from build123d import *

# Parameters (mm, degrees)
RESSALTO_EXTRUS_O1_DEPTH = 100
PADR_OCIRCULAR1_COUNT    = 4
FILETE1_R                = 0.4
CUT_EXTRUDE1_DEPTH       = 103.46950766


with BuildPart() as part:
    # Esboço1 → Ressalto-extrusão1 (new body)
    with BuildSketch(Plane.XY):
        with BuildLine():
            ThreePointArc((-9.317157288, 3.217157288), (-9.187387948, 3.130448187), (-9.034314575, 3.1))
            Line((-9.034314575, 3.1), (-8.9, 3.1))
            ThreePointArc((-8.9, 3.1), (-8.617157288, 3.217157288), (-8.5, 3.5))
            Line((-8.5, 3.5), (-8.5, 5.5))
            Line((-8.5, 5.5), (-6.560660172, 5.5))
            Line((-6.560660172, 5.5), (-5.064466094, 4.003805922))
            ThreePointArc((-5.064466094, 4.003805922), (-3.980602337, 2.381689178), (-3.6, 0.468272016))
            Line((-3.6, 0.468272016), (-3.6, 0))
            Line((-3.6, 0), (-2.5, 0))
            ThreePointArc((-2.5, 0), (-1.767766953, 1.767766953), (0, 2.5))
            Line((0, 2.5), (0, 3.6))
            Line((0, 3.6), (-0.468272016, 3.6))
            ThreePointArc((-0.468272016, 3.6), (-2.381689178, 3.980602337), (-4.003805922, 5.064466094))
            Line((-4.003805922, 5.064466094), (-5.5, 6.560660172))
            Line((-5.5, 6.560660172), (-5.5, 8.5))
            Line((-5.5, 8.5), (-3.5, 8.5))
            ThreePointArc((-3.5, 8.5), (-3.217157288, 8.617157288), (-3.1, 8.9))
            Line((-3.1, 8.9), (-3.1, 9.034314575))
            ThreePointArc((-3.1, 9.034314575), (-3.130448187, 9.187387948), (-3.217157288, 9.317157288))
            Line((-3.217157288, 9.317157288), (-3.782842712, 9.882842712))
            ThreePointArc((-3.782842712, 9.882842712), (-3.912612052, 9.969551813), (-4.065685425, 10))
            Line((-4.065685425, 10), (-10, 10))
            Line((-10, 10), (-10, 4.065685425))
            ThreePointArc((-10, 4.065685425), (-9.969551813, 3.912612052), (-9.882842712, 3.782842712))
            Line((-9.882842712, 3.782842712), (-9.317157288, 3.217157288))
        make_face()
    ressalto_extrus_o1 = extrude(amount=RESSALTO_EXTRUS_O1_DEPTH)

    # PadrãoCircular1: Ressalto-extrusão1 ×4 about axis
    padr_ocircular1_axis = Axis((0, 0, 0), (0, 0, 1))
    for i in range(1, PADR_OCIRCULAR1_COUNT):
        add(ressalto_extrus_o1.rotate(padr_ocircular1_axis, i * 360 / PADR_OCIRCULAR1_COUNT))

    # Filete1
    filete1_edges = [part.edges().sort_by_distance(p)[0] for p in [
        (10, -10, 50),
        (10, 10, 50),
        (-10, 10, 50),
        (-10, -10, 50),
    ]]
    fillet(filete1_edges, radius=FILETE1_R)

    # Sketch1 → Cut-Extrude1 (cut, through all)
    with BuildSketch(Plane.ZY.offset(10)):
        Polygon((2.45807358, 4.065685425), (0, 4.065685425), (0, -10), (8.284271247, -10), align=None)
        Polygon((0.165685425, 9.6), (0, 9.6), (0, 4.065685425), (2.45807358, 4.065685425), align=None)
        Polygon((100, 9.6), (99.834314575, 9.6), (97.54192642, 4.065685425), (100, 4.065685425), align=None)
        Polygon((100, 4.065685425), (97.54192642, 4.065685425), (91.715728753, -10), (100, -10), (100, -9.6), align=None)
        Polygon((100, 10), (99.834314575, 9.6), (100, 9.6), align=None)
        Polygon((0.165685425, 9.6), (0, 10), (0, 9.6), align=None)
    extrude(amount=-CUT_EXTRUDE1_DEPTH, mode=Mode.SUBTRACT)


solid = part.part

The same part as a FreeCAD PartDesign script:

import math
import FreeCAD as App
import Part
import Sketcher
from FreeCAD import Vector
Q = App.Units.Quantity


def edges_at(feature, points):
    """Names of the edges that pass closest to the given points."""
    edges = feature.Shape.Edges
    near = lambda p: min(range(len(edges)), key=lambda i: edges[i].distToShape(Part.Vertex(*p))[0])
    return sorted({f"Edge{near(p) + 1}" for p in points})


def add_polygon(sketch, points):
    """Adds a closed chain of lines whose ends are joined by coincident constraints."""
    first, n = sketch.GeometryCount, len(points)
    for a, b in zip(points, points[1:] + points[:1]):
        sketch.addGeometry(Part.LineSegment(App.Vector(*a, 0), App.Vector(*b, 0)), False)
    for i in range(n):
        sketch.addConstraint(Sketcher.Constraint("Coincident", first + i, 2, first + (i + 1) % n, 1))

doc = App.newDocument("Part")
body = doc.addObject("PartDesign::Body", "Body")

# Sketch on XY plane
sketch1 = body.newObject("Sketcher::SketchObject", "Sketch")
sketch1.AttachmentSupport = (doc.getObject("XY_Plane"), [""])
sketch1.MapMode = "FlatFace"
sketch1.addGeometry([
    Part.ArcOfCircle(Part.Circle(Vector(-9.034315, 3.5, 0), Vector(0, 0, 1), 0.4), math.radians(-135), math.radians(-90)),  # 0
    Part.LineSegment(Vector(-9.034315, 3.1, 0), Vector(-8.9, 3.1, 0)),  # 1
    Part.ArcOfCircle(Part.Circle(Vector(-8.9, 3.5, 0), Vector(0, 0, 1), 0.4), math.radians(-90), math.radians(0)),  # 2
    Part.LineSegment(Vector(-8.5, 3.5, 0), Vector(-8.5, 5.5, 0)),  # 3
    Part.LineSegment(Vector(-8.5, 5.5, 0), Vector(-6.56066, 5.5, 0)),  # 4
    Part.LineSegment(Vector(-6.56066, 5.5, 0), Vector(-5.064466, 4.003806, 0)),  # 5
    Part.ArcOfCircle(Part.Circle(Vector(-8.6, 0.468272, 0), Vector(0, 0, 1), 5), math.radians(0), math.radians(45)),  # 6
    Part.LineSegment(Vector(-3.6, 0.468272, 0), Vector(-3.6, 0, 0)),  # 7
    Part.LineSegment(Vector(-3.6, 0, 0), Vector(-2.5, 0, 0)),  # 8
    Part.ArcOfCircle(Part.Circle(Vector(0, 0, 0), Vector(0, 0, 1), 2.5), math.radians(90), math.radians(180)),  # 9
    Part.LineSegment(Vector(0, 2.5, 0), Vector(0, 3.6, 0)),  # 10
    Part.LineSegment(Vector(0, 3.6, 0), Vector(-0.468272, 3.6, 0)),  # 11
    Part.ArcOfCircle(Part.Circle(Vector(-0.468272, 8.6, 0), Vector(0, 0, 1), 5), math.radians(-135), math.radians(-90)),  # 12
    Part.LineSegment(Vector(-4.003806, 5.064466, 0), Vector(-5.5, 6.56066, 0)),  # 13
    Part.LineSegment(Vector(-5.5, 6.56066, 0), Vector(-5.5, 8.5, 0)),  # 14
    Part.LineSegment(Vector(-5.5, 8.5, 0), Vector(-3.5, 8.5, 0)),  # 15
    Part.ArcOfCircle(Part.Circle(Vector(-3.5, 8.9, 0), Vector(0, 0, 1), 0.4), math.radians(-90), math.radians(0)),  # 16
    Part.LineSegment(Vector(-3.1, 8.9, 0), Vector(-3.1, 9.034315, 0)),  # 17
    Part.ArcOfCircle(Part.Circle(Vector(-3.5, 9.034315, 0), Vector(0, 0, 1), 0.4), math.radians(0), math.radians(45)),  # 18
    Part.LineSegment(Vector(-3.217157, 9.317157, 0), Vector(-3.782843, 9.882843, 0)),  # 19
    Part.ArcOfCircle(Part.Circle(Vector(-4.065685, 9.6, 0), Vector(0, 0, 1), 0.4), math.radians(45), math.radians(90)),  # 20
    Part.LineSegment(Vector(-4.065685, 10, 0), Vector(-10, 10, 0)),  # 21
    Part.LineSegment(Vector(-10, 10, 0), Vector(-10, 4.065685, 0)),  # 22
    Part.ArcOfCircle(Part.Circle(Vector(-9.6, 4.065685, 0), Vector(0, 0, 1), 0.4), math.radians(180), math.radians(225)),  # 23
    Part.LineSegment(Vector(-9.882843, 3.782843, 0), Vector(-9.317157, 3.217157, 0)),  # 24
], False)
sketch1.addConstraint([
    Sketcher.Constraint("Tangent", 0, 2, 1, 1),
    Sketcher.Constraint("Tangent", 1, 2, 2, 1),
    Sketcher.Constraint("Tangent", 2, 2, 3, 1),
    Sketcher.Constraint("Coincident", 3, 2, 4, 1),
    Sketcher.Constraint("Coincident", 4, 2, 5, 1),
    Sketcher.Constraint("Tangent", 5, 2, 6, 2),
    Sketcher.Constraint("Tangent", 6, 1, 7, 1),
    Sketcher.Constraint("Coincident", 7, 2, 8, 1),
    Sketcher.Constraint("Coincident", 8, 2, 9, 2),
    Sketcher.Constraint("Coincident", 9, 1, 10, 1),
    Sketcher.Constraint("Coincident", 10, 2, 11, 1),
    Sketcher.Constraint("Tangent", 11, 2, 12, 2),
    Sketcher.Constraint("Tangent", 12, 1, 13, 1),
    Sketcher.Constraint("Coincident", 13, 2, 14, 1),
    Sketcher.Constraint("Coincident", 14, 2, 15, 1),
    Sketcher.Constraint("Tangent", 15, 2, 16, 1),
    Sketcher.Constraint("Tangent", 16, 2, 17, 1),
    Sketcher.Constraint("Tangent", 17, 2, 18, 1),
    Sketcher.Constraint("Tangent", 18, 2, 19, 1),
    Sketcher.Constraint("Tangent", 19, 2, 20, 1),
    Sketcher.Constraint("Tangent", 20, 2, 21, 1),
    Sketcher.Constraint("Coincident", 21, 2, 22, 1),
    Sketcher.Constraint("Tangent", 22, 2, 23, 1),
    Sketcher.Constraint("Tangent", 23, 2, 24, 1),
    Sketcher.Constraint("Tangent", 24, 2, 0, 1),
    Sketcher.Constraint("Horizontal", 1),
    Sketcher.Constraint("Vertical", 3),
    Sketcher.Constraint("Horizontal", 4),
    Sketcher.Constraint("Vertical", 7),
    Sketcher.Constraint("Horizontal", 8),
    Sketcher.Constraint("Vertical", 10),
    Sketcher.Constraint("Horizontal", 11),
    Sketcher.Constraint("Vertical", 14),
    Sketcher.Constraint("Horizontal", 15),
    Sketcher.Constraint("Vertical", 17),
    Sketcher.Constraint("Horizontal", 21),
    Sketcher.Constraint("Vertical", 22),
    Sketcher.Constraint("Coincident", 9, 3, -1, 1),
    Sketcher.Constraint("Equal", 0, 2),
    Sketcher.Constraint("Equal", 6, 12),
    Sketcher.Constraint("Equal", 2, 16),
    Sketcher.Constraint("Equal", 16, 18),
    Sketcher.Constraint("Equal", 18, 20),
    Sketcher.Constraint("Equal", 20, 23),
    Sketcher.Constraint("PointOnObject", 7, 2, -1),
    Sketcher.Constraint("PointOnObject", 9, 1, -2),
    Sketcher.Constraint("Parallel", 5, 13),
    Sketcher.Constraint("Parallel", 13, 19),
    Sketcher.Constraint("Parallel", 19, 24),
    Sketcher.Constraint("Equal", 15, 3),
    Sketcher.Constraint("Equal", 11, 7),
    Sketcher.Constraint("Equal", 8, 10),
    Sketcher.Constraint("Equal", 4, 14),
    Sketcher.Constraint("Equal", 1, 17),
    Sketcher.Constraint("Equal", 21, 22),
    Sketcher.Constraint("Equal", 5, 13),
    Sketcher.Constraint("Equal", 19, 24),
    Sketcher.Constraint("Radius", 6, Q("5 mm")),
    Sketcher.Constraint("Radius", 0, Q("0.4 mm")),
    Sketcher.Constraint("Radius", 9, Q("2.5 mm")),
    Sketcher.Constraint("DistanceX", 15, 1, 15, 2, Q("2 mm")),
    Sketcher.Constraint("DistanceX", 8, 1, 8, 2, Q("1.1 mm")),
    Sketcher.Constraint("DistanceY", -1, 1, 20, 2, Q("10 mm")),
    Sketcher.Constraint("DistanceY", 4, 2, 14, 2, Q("3 mm")),
    Sketcher.Constraint("Distance", 19, Q("0.8 mm")),
    Sketcher.Constraint("DistanceY", -1, 1, 0, 3, Q("3.5 mm")),
    Sketcher.Constraint("DistanceX", 4, 1, 4, 2, Q("1.93934 mm")),
])
pad1 = body.newObject("PartDesign::Pad", "Pad")
pad1.Profile = sketch1
pad1.Length = 100
doc.recompute()

polarpattern = body.newObject("PartDesign::PolarPattern", "PolarPattern")
polarpattern.Originals = [pad1]
polarpattern.Axis = (doc.getObject("Z_Axis"), [""])
polarpattern.Angle = 360
polarpattern.Occurrences = 4
body.Tip = polarpattern
doc.recompute()

fillet = body.newObject("PartDesign::Fillet", "Fillet")
fillet.Base = (polarpattern, edges_at(polarpattern, [
    (10, -10, 50),
    (10, 10, 50),
    (-10, 10, 50),
    (-10, -10, 50),
]))
fillet.Radius = 0.4

# Sketch on YZ plane
sketch2 = body.newObject("Sketcher::SketchObject", "Sketch001")
sketch2.AttachmentSupport = (doc.getObject("YZ_Plane"), [""])
sketch2.MapMode = "FlatFace"
sketch2.AttachmentOffset = App.Placement(Vector(0, 0, -10), App.Rotation())
add_polygon(sketch2, [(-10, 0), (-10, 8.284271), (4.065685, 2.458074), (9.6, 0.165685), (10, 0)])  # lines 0-4
add_polygon(sketch2, [(9.6, 99.834315), (4.065685, 97.541926), (-10, 91.715729), (-10, 100), (10, 100)])  # lines 5-9
sketch2.addConstraint([
    Sketcher.Constraint("Vertical", 0),
    Sketcher.Constraint("Horizontal", 4),
    Sketcher.Constraint("Vertical", 7),
    Sketcher.Constraint("Horizontal", 8),
    Sketcher.Constraint("Symmetric", 3, 2, 4, 2, -1, 1),
    Sketcher.Constraint("Parallel", 1, 2),
    Sketcher.Constraint("Parallel", 2, 3),
    Sketcher.Constraint("Parallel", 5, 6),
    Sketcher.Constraint("Parallel", 6, 9),
    Sketcher.Constraint("Vertical", 1, 2, 5, 2),
    Sketcher.Constraint("Vertical", 4, 2, 6, 2),
    Sketcher.Constraint("Vertical", 3, 2, 8, 2),
    Sketcher.Constraint("Vertical", 2, 2, 9, 2),
    Sketcher.Constraint("Equal", 0, 7),
    Sketcher.Constraint("DistanceX", 4, 2, 4, 1, Q("20 mm")),
    Sketcher.Constraint("DistanceY", -1, 1, 7, 2, Q("100 mm")),
    Sketcher.Constraint("Angle", 1, Q("-22.5 deg")),
    Sketcher.Constraint("DistanceX", -1, 1, 2, 2, Q("9.6 mm")),
    Sketcher.Constraint("Distance", 2, Q("5.990299 mm")),
])
pocket1 = body.newObject("PartDesign::Pocket", "Pocket")
pocket1.Profile = sketch2
pocket1.Type = "ThroughAll"
pocket1.Reversed = True

doc.recompute()
